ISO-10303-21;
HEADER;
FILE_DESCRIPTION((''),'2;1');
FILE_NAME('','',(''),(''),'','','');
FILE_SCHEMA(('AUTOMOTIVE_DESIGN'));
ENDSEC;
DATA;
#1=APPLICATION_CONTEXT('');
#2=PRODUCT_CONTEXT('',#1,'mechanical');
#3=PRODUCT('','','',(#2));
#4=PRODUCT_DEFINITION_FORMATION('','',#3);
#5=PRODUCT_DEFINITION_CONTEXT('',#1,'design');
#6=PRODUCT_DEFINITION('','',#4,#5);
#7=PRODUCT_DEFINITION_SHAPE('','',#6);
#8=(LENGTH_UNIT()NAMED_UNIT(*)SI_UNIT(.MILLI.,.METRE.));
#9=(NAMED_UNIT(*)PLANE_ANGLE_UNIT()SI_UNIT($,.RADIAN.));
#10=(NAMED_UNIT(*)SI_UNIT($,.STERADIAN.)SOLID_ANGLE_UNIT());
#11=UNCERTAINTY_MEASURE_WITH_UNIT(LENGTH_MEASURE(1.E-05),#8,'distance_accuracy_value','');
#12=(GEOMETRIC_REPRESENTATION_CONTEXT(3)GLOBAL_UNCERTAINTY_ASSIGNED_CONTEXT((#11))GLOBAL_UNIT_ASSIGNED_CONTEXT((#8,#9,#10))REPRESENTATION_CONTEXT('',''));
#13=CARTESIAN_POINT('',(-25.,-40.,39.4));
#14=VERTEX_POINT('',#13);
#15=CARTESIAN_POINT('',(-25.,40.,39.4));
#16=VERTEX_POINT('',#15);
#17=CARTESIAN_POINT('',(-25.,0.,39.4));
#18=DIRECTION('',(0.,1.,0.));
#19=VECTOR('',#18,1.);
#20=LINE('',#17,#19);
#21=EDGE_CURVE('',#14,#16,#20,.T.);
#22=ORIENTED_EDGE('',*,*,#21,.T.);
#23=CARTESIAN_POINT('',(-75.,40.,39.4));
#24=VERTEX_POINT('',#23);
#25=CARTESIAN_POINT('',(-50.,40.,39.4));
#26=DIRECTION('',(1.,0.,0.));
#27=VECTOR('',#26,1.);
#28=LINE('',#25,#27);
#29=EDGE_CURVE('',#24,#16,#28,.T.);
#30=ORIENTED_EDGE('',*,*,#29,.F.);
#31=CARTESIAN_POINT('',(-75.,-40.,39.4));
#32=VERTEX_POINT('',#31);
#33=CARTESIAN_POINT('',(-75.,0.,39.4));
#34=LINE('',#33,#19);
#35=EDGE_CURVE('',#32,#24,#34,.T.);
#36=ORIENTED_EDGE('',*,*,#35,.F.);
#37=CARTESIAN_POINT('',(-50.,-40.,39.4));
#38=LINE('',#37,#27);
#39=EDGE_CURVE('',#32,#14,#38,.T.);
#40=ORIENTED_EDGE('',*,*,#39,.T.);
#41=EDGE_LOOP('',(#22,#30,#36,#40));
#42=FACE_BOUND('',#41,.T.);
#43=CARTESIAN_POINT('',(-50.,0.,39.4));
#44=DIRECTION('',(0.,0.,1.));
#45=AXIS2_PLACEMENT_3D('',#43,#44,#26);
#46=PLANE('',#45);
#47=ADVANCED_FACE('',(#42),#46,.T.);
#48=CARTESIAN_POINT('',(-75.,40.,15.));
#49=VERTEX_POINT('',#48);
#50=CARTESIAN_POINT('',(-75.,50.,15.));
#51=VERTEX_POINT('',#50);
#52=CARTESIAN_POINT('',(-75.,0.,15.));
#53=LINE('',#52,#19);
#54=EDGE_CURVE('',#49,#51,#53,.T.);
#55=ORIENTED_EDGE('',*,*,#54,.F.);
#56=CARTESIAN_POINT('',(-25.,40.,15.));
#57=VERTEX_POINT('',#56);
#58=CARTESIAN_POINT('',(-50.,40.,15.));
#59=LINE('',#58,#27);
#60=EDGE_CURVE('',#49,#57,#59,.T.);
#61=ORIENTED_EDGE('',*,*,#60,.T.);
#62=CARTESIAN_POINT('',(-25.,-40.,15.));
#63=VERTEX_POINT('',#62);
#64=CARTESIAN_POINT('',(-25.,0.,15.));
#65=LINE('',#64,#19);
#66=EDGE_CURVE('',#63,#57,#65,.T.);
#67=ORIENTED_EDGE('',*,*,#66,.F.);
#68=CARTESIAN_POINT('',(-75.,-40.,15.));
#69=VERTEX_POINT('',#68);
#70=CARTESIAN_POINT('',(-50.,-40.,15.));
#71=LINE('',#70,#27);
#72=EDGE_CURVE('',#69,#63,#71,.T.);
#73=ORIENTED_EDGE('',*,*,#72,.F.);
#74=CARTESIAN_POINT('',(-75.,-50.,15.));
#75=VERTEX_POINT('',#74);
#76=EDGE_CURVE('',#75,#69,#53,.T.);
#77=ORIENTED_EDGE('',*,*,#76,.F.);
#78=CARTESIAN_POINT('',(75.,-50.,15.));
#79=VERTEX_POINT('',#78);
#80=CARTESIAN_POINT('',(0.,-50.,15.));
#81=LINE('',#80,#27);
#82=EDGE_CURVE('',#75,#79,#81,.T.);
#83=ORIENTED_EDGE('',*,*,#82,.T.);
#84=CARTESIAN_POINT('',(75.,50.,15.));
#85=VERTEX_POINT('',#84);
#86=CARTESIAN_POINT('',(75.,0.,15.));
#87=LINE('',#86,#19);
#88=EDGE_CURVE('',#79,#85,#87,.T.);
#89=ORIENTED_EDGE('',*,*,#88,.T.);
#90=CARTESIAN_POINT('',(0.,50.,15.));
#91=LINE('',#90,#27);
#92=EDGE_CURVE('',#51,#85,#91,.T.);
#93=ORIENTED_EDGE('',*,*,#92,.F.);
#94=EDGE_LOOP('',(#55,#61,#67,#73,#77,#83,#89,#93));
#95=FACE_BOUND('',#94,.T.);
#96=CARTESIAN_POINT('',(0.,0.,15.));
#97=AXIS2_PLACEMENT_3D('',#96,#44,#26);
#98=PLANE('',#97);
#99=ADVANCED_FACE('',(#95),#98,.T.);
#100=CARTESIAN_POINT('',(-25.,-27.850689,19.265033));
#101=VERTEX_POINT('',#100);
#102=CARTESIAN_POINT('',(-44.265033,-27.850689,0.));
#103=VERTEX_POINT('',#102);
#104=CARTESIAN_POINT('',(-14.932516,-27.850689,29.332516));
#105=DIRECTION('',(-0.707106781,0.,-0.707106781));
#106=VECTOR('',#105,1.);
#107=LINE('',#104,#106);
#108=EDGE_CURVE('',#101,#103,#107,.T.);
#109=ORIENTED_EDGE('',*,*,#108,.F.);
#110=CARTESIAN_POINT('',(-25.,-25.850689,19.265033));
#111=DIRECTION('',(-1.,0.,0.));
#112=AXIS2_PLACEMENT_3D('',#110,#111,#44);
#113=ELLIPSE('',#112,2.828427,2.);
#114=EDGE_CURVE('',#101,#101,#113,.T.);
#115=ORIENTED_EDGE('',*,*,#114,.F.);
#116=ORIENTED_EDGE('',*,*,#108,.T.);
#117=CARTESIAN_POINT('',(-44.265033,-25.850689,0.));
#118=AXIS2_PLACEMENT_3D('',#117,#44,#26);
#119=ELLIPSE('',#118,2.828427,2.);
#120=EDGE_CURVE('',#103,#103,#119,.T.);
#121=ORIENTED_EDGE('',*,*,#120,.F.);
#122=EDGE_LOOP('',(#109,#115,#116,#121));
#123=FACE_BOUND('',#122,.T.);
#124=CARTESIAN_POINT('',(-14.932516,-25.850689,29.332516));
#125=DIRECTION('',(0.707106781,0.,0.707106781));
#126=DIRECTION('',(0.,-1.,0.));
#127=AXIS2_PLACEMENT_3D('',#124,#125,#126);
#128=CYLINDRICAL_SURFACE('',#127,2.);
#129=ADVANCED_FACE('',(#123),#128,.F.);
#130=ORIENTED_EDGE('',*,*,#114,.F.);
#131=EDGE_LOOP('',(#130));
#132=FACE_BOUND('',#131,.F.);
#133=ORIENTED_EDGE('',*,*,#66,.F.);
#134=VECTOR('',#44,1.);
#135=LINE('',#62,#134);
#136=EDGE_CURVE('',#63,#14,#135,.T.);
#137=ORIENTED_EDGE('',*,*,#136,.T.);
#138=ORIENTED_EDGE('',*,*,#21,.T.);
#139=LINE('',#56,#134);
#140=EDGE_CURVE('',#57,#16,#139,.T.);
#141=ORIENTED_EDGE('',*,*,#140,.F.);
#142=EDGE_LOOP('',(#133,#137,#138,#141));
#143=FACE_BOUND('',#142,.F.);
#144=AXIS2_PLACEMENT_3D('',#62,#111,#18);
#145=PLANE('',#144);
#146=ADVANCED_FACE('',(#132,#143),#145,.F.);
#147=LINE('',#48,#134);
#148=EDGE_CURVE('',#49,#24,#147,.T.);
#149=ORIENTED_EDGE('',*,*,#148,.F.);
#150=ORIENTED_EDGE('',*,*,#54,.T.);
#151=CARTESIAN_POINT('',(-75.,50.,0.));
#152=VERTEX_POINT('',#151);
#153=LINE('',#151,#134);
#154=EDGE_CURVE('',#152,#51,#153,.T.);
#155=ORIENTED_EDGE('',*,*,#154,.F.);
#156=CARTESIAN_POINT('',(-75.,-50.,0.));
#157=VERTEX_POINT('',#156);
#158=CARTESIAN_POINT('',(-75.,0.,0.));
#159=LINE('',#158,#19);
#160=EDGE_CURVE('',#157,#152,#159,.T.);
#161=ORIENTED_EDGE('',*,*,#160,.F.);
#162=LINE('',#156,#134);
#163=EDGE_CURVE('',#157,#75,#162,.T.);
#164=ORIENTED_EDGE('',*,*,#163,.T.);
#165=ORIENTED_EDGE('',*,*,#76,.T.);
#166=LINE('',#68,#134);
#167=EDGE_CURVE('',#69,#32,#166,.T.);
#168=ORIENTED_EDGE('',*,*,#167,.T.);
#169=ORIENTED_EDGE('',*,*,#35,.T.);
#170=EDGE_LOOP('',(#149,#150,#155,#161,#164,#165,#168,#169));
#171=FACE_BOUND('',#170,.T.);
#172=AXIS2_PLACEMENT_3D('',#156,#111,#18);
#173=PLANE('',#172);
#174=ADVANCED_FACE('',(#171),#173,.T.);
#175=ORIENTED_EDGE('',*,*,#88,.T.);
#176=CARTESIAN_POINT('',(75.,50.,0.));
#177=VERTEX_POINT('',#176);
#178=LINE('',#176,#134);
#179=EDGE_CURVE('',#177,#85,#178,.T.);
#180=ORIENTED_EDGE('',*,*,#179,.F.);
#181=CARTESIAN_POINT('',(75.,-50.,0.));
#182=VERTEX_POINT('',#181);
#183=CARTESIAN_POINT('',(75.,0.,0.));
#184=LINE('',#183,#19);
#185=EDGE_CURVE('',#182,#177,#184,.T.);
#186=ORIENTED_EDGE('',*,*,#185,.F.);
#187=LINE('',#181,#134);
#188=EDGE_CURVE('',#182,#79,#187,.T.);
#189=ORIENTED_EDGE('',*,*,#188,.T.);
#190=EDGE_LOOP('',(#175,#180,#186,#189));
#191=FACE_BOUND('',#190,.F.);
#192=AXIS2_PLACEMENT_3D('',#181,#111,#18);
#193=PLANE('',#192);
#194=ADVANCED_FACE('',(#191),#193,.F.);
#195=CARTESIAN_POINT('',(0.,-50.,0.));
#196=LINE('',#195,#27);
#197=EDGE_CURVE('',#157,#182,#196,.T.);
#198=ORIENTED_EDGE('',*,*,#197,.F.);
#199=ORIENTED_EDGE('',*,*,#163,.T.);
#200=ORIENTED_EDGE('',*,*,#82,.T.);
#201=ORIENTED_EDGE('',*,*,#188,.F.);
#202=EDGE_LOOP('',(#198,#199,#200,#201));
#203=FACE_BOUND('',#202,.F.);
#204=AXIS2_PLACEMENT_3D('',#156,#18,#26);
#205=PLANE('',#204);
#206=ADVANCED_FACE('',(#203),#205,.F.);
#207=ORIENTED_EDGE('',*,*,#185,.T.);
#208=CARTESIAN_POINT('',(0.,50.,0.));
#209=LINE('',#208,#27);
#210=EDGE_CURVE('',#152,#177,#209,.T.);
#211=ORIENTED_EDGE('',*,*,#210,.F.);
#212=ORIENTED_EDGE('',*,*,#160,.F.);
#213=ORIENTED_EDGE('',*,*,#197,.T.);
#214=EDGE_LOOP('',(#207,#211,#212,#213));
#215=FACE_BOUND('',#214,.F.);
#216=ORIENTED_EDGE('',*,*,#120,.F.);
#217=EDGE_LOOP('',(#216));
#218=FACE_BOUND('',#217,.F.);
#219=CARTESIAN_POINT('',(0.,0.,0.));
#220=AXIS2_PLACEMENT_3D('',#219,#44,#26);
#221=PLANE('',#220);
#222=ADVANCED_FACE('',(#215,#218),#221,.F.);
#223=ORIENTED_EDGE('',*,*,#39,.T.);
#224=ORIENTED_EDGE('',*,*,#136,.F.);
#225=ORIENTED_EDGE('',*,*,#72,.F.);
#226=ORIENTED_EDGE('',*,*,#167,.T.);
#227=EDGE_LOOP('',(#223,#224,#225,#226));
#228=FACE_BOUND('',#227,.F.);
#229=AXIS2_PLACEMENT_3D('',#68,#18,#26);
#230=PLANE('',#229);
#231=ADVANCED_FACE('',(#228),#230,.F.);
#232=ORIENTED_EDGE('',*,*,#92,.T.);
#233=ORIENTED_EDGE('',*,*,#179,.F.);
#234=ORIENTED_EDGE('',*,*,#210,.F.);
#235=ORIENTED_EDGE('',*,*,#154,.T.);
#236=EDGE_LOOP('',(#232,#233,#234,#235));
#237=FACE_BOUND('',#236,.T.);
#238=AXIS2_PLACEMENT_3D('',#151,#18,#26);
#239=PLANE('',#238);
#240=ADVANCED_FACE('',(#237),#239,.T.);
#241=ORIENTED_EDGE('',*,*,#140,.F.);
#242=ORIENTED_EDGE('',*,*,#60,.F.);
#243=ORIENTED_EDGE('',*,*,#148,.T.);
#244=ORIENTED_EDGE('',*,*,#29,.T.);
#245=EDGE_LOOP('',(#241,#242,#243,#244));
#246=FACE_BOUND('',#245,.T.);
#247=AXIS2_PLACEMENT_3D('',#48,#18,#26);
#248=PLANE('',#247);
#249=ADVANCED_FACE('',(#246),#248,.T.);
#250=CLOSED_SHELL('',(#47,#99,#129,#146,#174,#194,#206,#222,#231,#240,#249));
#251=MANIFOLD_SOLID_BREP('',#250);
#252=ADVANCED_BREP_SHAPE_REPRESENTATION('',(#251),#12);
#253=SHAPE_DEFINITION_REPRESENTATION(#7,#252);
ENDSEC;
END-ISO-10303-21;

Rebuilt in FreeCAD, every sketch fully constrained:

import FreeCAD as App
import Part
import Sketcher
Q = App.Units.Quantity

doc = App.newDocument("Part")
params = doc.addObject("Spreadsheet::Sheet", "Params")
for row, (alias, value) in enumerate([
    ("sketch1_width", "150 mm"),
    ("sketch1_height", "100 mm"),
    ("pad1_length", "15 mm"),
    ("sketch2_width", "50 mm"),
    ("sketch2_height", "80 mm"),
    ("pad2_length", "24.4 mm"),
    ("sketch3_diameter", "4 mm"),
    ("pocket1_length", "64.2 mm"),
], start=1):
    params.set(f"A{row}", alias)
    params.set(f"B{row}", "=" + value)
    params.setAlias(f"B{row}", alias)

body = doc.addObject("PartDesign::Body", "Body")

sketch1 = body.newObject("Sketcher::SketchObject", "Sketch")
sketch1.AttachmentSupport = (doc.getObject("XY_Plane"), [""])
sketch1.MapMode = "FlatFace"
sketch1.addGeometry(Part.LineSegment(App.Vector(-75, 50, 0), App.Vector(-75, -50, 0)), False)
sketch1.addGeometry(Part.LineSegment(App.Vector(-75, -50, 0), App.Vector(75, -50, 0)), False)
sketch1.addGeometry(Part.LineSegment(App.Vector(75, -50, 0), App.Vector(75, 50, 0)), False)
sketch1.addGeometry(Part.LineSegment(App.Vector(75, 50, 0), App.Vector(-75, 50, 0)), False)
sketch1.addConstraint(Sketcher.Constraint("Coincident", 0, 2, 1, 1))
sketch1.addConstraint(Sketcher.Constraint("Coincident", 1, 2, 2, 1))
sketch1.addConstraint(Sketcher.Constraint("Coincident", 2, 2, 3, 1))
sketch1.addConstraint(Sketcher.Constraint("Coincident", 3, 2, 0, 1))
sketch1.addConstraint(Sketcher.Constraint("Vertical", 0))
sketch1.addConstraint(Sketcher.Constraint("Horizontal", 1))
sketch1.addConstraint(Sketcher.Constraint("Vertical", 2))
sketch1.addConstraint(Sketcher.Constraint("Horizontal", 3))
sketch1.addConstraint(Sketcher.Constraint("Symmetric", 0, 2, 2, 2, -1, 1))
sketch1.addConstraint(Sketcher.Constraint("DistanceX", 1, 1, 1, 2, Q("150 mm")))
sketch1.addConstraint(Sketcher.Constraint("DistanceY", 0, 2, 0, 1, Q("100 mm")))
sketch1.setExpression("Constraints[9]", "Params.sketch1_width")
sketch1.setExpression("Constraints[10]", "Params.sketch1_height")
pad1 = body.newObject("PartDesign::Pad", "Pad")
pad1.Profile = sketch1
pad1.setExpression("Length", "Params.pad1_length")

sketch2 = body.newObject("Sketcher::SketchObject", "Sketch001")
sketch2.AttachmentSupport = (doc.getObject("XY_Plane"), [""])
sketch2.MapMode = "FlatFace"
sketch2.AttachmentOffset = App.Placement(App.Vector(0, 0, 15), App.Rotation())
sketch2.addGeometry(Part.LineSegment(App.Vector(-75, 40, 0), App.Vector(-75, -40, 0)), False)
sketch2.addGeometry(Part.LineSegment(App.Vector(-75, -40, 0), App.Vector(-25, -40, 0)), False)
sketch2.addGeometry(Part.LineSegment(App.Vector(-25, -40, 0), App.Vector(-25, 40, 0)), False)
sketch2.addGeometry(Part.LineSegment(App.Vector(-25, 40, 0), App.Vector(-75, 40, 0)), False)
sketch2.addConstraint(Sketcher.Constraint("Coincident", 0, 2, 1, 1))
sketch2.addConstraint(Sketcher.Constraint("Coincident", 1, 2, 2, 1))
sketch2.addConstraint(Sketcher.Constraint("Coincident", 2, 2, 3, 1))
sketch2.addConstraint(Sketcher.Constraint("Coincident", 3, 2, 0, 1))
sketch2.addConstraint(Sketcher.Constraint("Vertical", 0))
sketch2.addConstraint(Sketcher.Constraint("Horizontal", 1))
sketch2.addConstraint(Sketcher.Constraint("Vertical", 2))
sketch2.addConstraint(Sketcher.Constraint("Horizontal", 3))
sketch2.addConstraint(Sketcher.Constraint("DistanceX", 1, 1, 1, 2, Q("50 mm")))
sketch2.addConstraint(Sketcher.Constraint("DistanceY", 0, 2, 0, 1, Q("80 mm")))
sketch2.addConstraint(Sketcher.Constraint("DistanceX", 0, 2, -1, 1, Q("75 mm")))
sketch2.addConstraint(Sketcher.Constraint("DistanceY", 0, 2, -1, 1, Q("40 mm")))
sketch2.setExpression("Constraints[8]", "Params.sketch2_width")
sketch2.setExpression("Constraints[9]", "Params.sketch2_height")
pad2 = body.newObject("PartDesign::Pad", "Pad001")
pad2.Profile = sketch2
pad2.setExpression("Length", "Params.pad2_length")

sketch3 = body.newObject("Sketcher::SketchObject", "Sketch002")
sketch3.Placement = App.Placement(App.Vector(7.2, 0, 7.2), App.Rotation(App.Vector(0, -1, 0), App.Vector(-0.707106781, 0, 0.707106781), App.Vector(-0.707106781, 0, -0.707106781), "ZXY"))
sketch3.addGeometry(Part.Circle(App.Vector(25.9, 31.3, 0), App.Vector(0, 0, 1), 2), False)
sketch3.addConstraint(Sketcher.Constraint("Diameter", 0, Q("4 mm")))
sketch3.addConstraint(Sketcher.Constraint("DistanceX", -1, 1, 0, 3, Q("25.850689 mm")))
sketch3.addConstraint(Sketcher.Constraint("DistanceY", -1, 1, 0, 3, Q("31.300105 mm")))
sketch3.setExpression("Constraints[0]", "Params.sketch3_diameter")
pocket1 = body.newObject("PartDesign::Pocket", "Pocket")
pocket1.Profile = sketch3
pocket1.setExpression("Length", "Params.pocket1_length")
pocket1.Reversed = True

doc.recompute()
